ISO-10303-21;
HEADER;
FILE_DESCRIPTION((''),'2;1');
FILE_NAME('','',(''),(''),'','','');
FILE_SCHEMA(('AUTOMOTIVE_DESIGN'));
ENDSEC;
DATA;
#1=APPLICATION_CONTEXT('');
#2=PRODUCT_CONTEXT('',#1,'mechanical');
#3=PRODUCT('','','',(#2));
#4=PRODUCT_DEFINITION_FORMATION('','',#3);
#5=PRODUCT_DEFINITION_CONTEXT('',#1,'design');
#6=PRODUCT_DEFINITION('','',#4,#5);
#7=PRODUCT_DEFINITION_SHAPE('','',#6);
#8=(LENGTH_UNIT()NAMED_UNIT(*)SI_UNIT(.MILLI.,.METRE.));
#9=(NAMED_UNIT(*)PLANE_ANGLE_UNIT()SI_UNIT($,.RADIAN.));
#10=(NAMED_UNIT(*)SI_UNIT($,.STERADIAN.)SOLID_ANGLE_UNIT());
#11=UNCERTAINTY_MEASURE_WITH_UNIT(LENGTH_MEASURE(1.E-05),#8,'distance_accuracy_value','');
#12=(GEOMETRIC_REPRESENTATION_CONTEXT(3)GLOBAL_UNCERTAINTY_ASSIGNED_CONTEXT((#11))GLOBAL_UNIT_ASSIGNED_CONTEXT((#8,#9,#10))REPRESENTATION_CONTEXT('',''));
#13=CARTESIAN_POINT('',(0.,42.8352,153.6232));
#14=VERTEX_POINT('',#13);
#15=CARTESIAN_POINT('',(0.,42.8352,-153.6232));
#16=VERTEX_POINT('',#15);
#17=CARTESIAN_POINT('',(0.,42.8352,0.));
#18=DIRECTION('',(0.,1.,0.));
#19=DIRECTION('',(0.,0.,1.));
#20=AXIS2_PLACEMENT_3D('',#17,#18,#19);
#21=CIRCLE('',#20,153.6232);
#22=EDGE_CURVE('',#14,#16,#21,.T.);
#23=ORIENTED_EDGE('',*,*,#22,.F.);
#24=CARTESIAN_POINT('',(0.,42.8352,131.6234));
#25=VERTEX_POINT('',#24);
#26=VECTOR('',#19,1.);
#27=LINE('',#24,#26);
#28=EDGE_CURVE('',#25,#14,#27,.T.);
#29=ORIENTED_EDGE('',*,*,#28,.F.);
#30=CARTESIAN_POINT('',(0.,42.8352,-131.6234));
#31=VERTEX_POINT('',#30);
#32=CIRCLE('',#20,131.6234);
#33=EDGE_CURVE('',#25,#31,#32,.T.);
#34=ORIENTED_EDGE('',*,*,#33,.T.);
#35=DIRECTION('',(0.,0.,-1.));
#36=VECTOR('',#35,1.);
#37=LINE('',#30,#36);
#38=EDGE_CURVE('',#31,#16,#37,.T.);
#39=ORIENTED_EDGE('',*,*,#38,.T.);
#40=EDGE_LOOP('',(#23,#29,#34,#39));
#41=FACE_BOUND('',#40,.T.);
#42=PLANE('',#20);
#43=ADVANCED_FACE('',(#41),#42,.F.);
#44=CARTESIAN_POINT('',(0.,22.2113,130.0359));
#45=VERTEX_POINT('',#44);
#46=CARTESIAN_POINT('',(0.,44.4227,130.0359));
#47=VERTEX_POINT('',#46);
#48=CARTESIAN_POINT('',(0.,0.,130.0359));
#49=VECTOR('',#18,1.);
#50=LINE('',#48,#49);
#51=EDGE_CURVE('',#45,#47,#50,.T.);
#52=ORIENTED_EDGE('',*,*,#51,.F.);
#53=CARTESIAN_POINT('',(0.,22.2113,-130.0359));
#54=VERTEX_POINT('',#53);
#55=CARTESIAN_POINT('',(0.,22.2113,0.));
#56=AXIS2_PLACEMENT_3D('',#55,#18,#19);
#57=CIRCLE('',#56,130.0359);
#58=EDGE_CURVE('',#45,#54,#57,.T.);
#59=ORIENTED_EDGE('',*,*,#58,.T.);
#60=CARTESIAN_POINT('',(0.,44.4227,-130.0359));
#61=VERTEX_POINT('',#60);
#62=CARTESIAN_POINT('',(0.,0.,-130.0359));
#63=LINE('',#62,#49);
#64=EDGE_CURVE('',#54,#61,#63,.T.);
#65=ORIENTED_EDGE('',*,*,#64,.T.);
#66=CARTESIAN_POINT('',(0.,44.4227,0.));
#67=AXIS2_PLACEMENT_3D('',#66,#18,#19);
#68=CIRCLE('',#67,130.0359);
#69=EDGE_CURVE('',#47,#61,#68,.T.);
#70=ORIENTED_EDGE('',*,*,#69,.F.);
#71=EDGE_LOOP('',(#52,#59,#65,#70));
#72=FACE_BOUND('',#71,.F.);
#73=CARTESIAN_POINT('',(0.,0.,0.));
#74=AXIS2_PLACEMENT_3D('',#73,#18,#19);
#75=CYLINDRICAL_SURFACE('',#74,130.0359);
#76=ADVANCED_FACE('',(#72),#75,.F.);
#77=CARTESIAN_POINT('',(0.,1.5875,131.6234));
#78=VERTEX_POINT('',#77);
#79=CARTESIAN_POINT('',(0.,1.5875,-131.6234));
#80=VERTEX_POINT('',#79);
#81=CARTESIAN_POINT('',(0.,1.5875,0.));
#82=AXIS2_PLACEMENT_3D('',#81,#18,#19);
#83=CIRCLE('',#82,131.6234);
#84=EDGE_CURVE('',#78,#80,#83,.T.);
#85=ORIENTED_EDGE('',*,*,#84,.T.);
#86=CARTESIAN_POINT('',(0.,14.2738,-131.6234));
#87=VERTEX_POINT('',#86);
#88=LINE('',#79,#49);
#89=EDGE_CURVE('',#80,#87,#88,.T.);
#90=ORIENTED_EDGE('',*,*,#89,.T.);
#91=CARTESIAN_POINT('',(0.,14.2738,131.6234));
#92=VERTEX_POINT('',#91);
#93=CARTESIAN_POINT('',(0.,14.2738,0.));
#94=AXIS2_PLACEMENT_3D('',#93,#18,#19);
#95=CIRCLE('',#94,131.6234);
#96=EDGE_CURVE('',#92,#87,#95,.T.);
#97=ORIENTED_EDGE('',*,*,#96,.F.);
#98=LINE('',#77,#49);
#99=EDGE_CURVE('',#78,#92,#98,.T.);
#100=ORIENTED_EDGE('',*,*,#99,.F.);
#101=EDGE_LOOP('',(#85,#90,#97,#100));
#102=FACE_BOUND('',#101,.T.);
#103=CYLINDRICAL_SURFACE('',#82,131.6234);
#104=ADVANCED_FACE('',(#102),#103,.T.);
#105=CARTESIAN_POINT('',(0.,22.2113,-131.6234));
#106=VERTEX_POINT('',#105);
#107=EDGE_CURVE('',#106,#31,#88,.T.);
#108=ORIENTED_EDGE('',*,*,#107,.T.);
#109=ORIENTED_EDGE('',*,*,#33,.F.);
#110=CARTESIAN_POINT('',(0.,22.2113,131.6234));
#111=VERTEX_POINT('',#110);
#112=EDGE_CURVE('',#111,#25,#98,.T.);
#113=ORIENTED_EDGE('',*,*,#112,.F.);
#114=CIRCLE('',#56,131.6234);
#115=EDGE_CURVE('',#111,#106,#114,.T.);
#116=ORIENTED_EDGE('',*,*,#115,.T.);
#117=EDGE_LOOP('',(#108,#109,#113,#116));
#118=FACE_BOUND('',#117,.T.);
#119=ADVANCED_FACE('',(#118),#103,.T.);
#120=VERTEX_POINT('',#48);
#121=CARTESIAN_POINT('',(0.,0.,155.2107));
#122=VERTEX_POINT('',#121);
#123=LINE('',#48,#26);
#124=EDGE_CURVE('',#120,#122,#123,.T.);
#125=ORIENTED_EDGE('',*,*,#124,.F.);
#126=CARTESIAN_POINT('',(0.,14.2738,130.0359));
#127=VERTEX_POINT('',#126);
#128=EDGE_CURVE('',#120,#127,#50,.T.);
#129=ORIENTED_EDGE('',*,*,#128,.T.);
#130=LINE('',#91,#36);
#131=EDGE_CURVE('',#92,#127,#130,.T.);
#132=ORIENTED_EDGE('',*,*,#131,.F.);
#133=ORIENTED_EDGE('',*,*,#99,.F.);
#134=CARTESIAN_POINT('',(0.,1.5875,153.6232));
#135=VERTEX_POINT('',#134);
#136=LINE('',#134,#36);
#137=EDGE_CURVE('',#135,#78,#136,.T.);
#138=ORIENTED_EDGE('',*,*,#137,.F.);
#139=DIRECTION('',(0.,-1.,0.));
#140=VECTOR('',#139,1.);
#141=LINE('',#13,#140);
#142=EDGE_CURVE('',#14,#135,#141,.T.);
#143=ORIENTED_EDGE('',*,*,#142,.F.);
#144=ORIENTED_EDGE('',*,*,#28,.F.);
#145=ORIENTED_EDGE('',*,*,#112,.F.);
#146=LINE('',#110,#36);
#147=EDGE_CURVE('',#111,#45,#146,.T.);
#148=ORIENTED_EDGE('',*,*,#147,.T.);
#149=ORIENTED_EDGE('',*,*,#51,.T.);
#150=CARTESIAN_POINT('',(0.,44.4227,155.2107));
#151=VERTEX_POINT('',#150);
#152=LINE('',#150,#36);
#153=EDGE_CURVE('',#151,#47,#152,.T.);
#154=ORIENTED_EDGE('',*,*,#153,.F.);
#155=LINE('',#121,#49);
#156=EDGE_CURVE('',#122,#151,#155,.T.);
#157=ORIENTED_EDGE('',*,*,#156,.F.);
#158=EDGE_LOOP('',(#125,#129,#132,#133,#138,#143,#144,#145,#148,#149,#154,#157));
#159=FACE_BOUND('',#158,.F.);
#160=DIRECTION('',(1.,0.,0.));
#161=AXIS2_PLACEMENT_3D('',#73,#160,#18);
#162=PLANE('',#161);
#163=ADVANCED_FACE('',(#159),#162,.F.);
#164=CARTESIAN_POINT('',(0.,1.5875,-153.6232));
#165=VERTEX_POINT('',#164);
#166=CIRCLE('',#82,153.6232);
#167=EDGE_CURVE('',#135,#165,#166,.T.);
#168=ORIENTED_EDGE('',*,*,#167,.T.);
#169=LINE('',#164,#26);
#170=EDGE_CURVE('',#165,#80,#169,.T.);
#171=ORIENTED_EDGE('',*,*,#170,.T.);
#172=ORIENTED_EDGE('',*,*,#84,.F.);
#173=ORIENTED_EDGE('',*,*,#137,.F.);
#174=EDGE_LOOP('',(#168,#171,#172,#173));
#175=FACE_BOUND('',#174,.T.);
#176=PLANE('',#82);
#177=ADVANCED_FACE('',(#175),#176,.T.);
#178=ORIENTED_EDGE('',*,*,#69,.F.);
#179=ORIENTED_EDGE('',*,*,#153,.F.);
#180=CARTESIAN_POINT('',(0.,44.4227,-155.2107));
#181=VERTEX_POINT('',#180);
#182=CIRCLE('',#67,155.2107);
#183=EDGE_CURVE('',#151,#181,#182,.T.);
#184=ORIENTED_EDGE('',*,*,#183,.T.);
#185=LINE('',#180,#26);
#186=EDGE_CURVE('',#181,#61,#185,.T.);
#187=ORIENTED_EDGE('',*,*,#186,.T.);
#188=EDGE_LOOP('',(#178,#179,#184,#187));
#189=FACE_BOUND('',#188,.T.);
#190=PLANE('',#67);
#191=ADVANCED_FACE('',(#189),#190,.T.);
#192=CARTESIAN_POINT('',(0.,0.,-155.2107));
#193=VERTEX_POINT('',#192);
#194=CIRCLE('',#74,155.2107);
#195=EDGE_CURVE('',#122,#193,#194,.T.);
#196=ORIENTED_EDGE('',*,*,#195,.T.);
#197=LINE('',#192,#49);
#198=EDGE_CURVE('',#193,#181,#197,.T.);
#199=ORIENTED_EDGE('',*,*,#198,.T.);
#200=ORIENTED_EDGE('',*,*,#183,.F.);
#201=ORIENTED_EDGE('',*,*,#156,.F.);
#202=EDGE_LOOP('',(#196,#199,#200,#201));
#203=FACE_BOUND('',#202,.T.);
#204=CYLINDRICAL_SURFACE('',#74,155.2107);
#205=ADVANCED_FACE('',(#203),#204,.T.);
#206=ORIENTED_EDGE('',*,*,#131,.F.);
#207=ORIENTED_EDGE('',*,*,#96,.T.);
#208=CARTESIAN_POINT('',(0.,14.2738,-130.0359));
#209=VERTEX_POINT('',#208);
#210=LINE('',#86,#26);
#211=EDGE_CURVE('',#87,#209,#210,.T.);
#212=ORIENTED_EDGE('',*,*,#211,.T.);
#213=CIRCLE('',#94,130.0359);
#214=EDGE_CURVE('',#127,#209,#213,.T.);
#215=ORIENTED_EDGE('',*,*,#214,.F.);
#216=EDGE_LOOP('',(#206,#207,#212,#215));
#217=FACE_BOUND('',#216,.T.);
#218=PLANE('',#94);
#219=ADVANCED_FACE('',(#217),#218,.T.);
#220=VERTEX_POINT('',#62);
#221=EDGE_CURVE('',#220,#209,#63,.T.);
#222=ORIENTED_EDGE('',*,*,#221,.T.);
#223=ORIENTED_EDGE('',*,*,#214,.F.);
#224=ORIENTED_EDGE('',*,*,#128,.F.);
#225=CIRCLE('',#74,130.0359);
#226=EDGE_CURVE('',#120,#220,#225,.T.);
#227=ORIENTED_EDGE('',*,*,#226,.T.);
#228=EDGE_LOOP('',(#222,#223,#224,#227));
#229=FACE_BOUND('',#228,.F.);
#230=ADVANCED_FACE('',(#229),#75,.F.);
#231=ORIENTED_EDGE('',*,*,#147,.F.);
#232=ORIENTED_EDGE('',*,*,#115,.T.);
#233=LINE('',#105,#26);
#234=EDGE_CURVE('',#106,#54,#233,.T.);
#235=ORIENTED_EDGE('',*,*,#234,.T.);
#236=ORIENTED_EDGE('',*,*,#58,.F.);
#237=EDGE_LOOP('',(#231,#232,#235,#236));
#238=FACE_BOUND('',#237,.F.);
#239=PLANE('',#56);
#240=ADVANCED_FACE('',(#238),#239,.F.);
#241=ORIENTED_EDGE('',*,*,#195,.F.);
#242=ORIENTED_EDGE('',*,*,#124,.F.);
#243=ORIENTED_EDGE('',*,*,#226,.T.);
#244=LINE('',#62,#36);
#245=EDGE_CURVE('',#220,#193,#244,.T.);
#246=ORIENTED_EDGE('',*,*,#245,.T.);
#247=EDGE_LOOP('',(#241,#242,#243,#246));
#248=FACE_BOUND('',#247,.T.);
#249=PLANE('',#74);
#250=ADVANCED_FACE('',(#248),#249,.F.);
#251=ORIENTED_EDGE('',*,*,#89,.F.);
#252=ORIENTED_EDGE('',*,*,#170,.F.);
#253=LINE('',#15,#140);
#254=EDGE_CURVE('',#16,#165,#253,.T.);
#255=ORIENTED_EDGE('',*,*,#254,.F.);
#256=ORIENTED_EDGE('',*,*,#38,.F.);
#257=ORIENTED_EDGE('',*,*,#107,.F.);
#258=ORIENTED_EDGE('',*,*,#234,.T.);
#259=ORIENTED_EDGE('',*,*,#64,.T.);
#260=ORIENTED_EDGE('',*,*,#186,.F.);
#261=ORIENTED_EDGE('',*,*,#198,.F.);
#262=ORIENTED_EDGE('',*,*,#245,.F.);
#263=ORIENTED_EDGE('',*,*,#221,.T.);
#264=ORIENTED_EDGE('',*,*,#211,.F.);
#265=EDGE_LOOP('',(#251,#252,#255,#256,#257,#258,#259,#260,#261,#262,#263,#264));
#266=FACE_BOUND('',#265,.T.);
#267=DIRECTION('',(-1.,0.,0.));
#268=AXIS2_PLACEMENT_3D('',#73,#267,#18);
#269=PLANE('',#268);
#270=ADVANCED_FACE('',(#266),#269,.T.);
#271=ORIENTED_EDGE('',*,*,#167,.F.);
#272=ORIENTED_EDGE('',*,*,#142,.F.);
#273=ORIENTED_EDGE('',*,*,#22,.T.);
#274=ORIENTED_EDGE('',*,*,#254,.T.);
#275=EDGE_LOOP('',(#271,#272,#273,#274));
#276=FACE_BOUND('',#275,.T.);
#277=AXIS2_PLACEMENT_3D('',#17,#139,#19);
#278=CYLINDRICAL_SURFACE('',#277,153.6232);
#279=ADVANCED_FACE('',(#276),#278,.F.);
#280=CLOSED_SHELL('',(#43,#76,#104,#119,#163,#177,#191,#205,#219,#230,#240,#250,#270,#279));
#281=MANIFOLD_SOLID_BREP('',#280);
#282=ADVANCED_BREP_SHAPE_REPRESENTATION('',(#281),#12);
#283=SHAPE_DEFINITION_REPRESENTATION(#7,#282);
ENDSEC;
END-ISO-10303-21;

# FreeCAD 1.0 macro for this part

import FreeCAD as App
import Part
import Sketcher
Q = App.Units.Quantity

doc = App.newDocument("Part")
params = doc.addObject("Spreadsheet::Sheet", "Params")
for row, (alias, value) in enumerate([
    ("sketch1_height", "0.0625 in"),
    ("revolution_angle", "180 deg"),
], start=1):
    params.set(f"A{row}", alias)
    params.set(f"B{row}", "=" + value)
    params.setAlias(f"B{row}", alias)

body = doc.addObject("PartDesign::Body", "Body")

sketch1 = doc.addObject("Sketcher::SketchObject", "Sketch")
body.addObject(sketch1)
sketch1.AttachmentSupport = (doc.YZ_Plane, [""])
sketch1.MapMode = "FlatFace"
sketch1.addGeometry(Part.LineSegment(App.Vector(0, 155.2, 0), App.Vector(0, 130, 0)), False)
sketch1.addGeometry(Part.LineSegment(App.Vector(0, 130, 0), App.Vector(14.3, 130, 0)), False)
sketch1.addGeometry(Part.LineSegment(App.Vector(14.3, 130, 0), App.Vector(14.3, 131.6, 0)), False)
sketch1.addGeometry(Part.LineSegment(App.Vector(14.3, 131.6, 0), App.Vector(1.6, 131.6, 0)), False)
sketch1.addGeometry(Part.LineSegment(App.Vector(1.6, 131.6, 0), App.Vector(1.6, 153.6, 0)), False)
sketch1.addGeometry(Part.LineSegment(App.Vector(1.6, 153.6, 0), App.Vector(42.8, 153.6, 0)), False)
sketch1.addGeometry(Part.LineSegment(App.Vector(42.8, 153.6, 0), App.Vector(42.8, 131.6, 0)), False)
sketch1.addGeometry(Part.LineSegment(App.Vector(42.8, 131.6, 0), App.Vector(22.2, 131.6, 0)), False)
sketch1.addGeometry(Part.LineSegment(App.Vector(22.2, 131.6, 0), App.Vector(22.2, 130, 0)), False)
sketch1.addGeometry(Part.LineSegment(App.Vector(22.2, 130, 0), App.Vector(44.4, 130, 0)), False)
sketch1.addGeometry(Part.LineSegment(App.Vector(44.4, 130, 0), App.Vector(44.4, 155.2, 0)), False)
sketch1.addGeometry(Part.LineSegment(App.Vector(44.4, 155.2, 0), App.Vector(0, 155.2, 0)), False)
sketch1.addConstraint(Sketcher.Constraint("Coincident", 0, 2, 1, 1))
sketch1.addConstraint(Sketcher.Constraint("Coincident", 1, 2, 2, 1))
sketch1.addConstraint(Sketcher.Constraint("Coincident", 2, 2, 3, 1))
sketch1.addConstraint(Sketcher.Constraint("Coincident", 3, 2, 4, 1))
sketch1.addConstraint(Sketcher.Constraint("Coincident", 4, 2, 5, 1))
sketch1.addConstraint(Sketcher.Constraint("Coincident", 5, 2, 6, 1))
sketch1.addConstraint(Sketcher.Constraint("Coincident", 6, 2, 7, 1))
sketch1.addConstraint(Sketcher.Constraint("Coincident", 7, 2, 8, 1))
sketch1.addConstraint(Sketcher.Constraint("Coincident", 8, 2, 9, 1))
sketch1.addConstraint(Sketcher.Constraint("Coincident", 9, 2, 10, 1))
sketch1.addConstraint(Sketcher.Constraint("Coincident", 10, 2, 11, 1))
sketch1.addConstraint(Sketcher.Constraint("Coincident", 11, 2, 0, 1))
sketch1.addConstraint(Sketcher.Constraint("Vertical", 0))
sketch1.addConstraint(Sketcher.Constraint("Horizontal", 1))
sketch1.addConstraint(Sketcher.Constraint("Vertical", 2))
sketch1.addConstraint(Sketcher.Constraint("Horizontal", 3))
sketch1.addConstraint(Sketcher.Constraint("Vertical", 4))
sketch1.addConstraint(Sketcher.Constraint("Horizontal", 5))
sketch1.addConstraint(Sketcher.Constraint("Vertical", 6))
sketch1.addConstraint(Sketcher.Constraint("Horizontal", 7))
sketch1.addConstraint(Sketcher.Constraint("Vertical", 8))
sketch1.addConstraint(Sketcher.Constraint("Horizontal", 9))
sketch1.addConstraint(Sketcher.Constraint("Vertical", 10))
sketch1.addConstraint(Sketcher.Constraint("Horizontal", 11))
sketch1.addConstraint(Sketcher.Constraint("PointOnObject", 0, 2, -2))
sketch1.addConstraint(Sketcher.Constraint("Horizontal", 3, 2, 6, 2))
sketch1.addConstraint(Sketcher.Constraint("Horizontal", 1, 2, 8, 2))
sketch1.addConstraint(Sketcher.Constraint("DistanceY", 2, 1, 2, 2, Q("0.0625 in")))
sketch1.addConstraint(Sketcher.Constraint("DistanceX", -1, 1, 3, 2, Q("0.0625 in")))
sketch1.addConstraint(Sketcher.Constraint("DistanceX", 2, 2, 7, 2, Q("0.3125 in")))
sketch1.addConstraint(Sketcher.Constraint("DistanceX", 6, 2, 9, 2, Q("0.0625 in")))
sketch1.addConstraint(Sketcher.Constraint("DistanceY", 5, 2, 10, 2, Q("0.0625 in")))
sketch1.addConstraint(Sketcher.Constraint("DistanceX", 11, 2, 11, 1, Q("44.4227 mm")))
sketch1.addConstraint(Sketcher.Constraint("DistanceY", 0, 2, 0, 1, Q("25.1748 mm")))
sketch1.addConstraint(Sketcher.Constraint("DistanceY", -1, 1, 0, 2, Q("130.036 mm")))
sketch1.addConstraint(Sketcher.Constraint("DistanceX", 1, 1, 1, 2, Q("14.2738 mm")))
sketch1.setExpression("Constraints[27]", "Params.sketch1_height")
revolution = doc.addObject("PartDesign::Revolution", "Revolution")
body.addObject(revolution)
revolution.Profile = sketch1
revolution.ReferenceAxis = (sketch1, ["H_Axis"])
revolution.setExpression("Angle", "Params.revolution_angle")

doc.recompute()
